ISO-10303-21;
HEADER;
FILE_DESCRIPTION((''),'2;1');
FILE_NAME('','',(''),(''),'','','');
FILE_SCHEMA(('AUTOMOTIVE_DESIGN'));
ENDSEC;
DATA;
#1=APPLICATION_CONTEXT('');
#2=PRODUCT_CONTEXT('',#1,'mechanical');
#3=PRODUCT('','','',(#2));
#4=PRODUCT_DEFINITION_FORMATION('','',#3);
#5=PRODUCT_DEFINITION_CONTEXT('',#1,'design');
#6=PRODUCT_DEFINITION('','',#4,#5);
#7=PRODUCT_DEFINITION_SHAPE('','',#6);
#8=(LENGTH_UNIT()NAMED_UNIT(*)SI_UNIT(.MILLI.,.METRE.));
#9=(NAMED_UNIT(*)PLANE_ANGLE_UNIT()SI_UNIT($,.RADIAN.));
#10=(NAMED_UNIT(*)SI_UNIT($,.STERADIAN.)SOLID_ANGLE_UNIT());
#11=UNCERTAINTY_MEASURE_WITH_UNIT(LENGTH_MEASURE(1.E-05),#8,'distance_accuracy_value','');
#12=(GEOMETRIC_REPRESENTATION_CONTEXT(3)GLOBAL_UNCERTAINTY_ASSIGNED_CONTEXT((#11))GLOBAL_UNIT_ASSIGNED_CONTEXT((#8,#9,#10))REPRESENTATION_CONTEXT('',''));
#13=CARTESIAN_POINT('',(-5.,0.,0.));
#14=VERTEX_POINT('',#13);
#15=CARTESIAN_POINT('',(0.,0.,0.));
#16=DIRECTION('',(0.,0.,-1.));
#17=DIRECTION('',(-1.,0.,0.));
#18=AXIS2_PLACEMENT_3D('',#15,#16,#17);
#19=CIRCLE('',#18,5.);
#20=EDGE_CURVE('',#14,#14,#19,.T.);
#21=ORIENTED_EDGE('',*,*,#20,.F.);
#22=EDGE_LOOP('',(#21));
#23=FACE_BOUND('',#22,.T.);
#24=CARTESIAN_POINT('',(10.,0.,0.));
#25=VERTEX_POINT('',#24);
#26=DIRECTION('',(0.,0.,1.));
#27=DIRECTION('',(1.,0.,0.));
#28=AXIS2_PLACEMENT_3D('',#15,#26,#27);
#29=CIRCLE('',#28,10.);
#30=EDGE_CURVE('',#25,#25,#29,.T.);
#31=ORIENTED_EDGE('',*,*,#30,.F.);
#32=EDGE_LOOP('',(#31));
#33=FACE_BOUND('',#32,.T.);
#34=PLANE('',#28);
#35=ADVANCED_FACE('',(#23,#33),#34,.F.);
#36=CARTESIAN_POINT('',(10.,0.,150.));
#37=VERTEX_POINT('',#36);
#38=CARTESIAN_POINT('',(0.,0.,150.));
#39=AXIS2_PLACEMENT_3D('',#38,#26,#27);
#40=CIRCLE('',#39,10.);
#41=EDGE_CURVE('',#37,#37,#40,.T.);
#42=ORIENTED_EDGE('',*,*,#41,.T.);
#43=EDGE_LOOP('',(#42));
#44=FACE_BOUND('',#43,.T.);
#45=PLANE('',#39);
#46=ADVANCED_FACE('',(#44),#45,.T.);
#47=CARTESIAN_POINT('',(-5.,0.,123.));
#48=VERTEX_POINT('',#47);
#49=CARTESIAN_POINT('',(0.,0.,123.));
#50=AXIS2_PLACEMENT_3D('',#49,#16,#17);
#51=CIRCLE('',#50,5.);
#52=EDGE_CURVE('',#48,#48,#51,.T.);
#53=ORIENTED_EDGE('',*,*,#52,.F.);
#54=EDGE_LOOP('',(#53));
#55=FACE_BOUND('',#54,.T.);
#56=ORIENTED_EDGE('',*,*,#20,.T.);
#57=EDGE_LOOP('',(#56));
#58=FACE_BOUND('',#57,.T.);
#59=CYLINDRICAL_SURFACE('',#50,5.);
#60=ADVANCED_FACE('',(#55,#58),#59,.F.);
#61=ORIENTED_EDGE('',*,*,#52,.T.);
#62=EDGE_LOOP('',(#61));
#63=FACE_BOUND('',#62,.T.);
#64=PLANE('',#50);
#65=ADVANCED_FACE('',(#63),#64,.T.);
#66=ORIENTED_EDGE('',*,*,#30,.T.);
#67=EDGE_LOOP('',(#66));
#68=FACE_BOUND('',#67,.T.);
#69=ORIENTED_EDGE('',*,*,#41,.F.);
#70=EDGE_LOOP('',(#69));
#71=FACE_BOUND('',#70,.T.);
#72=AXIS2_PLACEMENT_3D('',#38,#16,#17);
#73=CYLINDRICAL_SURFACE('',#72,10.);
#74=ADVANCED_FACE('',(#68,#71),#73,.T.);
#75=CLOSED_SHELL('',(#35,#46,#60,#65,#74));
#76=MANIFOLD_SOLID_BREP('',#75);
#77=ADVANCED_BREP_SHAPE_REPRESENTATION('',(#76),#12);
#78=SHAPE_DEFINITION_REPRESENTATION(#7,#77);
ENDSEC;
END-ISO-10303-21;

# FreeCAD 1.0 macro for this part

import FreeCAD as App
import Part
import Sketcher
from FreeCAD import Vector
Q = App.Units.Quantity

doc = App.newDocument("Part")
body = doc.addObject("PartDesign::Body", "Body")

sketch1 = doc.addObject("Sketcher::SketchObject", "Sketch")
body.addObject(sketch1)
sketch1.AttachmentSupport = (doc.XY_Plane, [""])
sketch1.MapMode = "FlatFace"
sketch1.addGeometry(Part.Circle(Vector(0, 0, 0), Vector(0, 0, 1), 10), False)
sketch1.addConstraint([
    Sketcher.Constraint("Coincident", 0, 3, -1, 1),
    Sketcher.Constraint("Diameter", 0, Q("20 mm")),
])
pad1 = doc.addObject("PartDesign::Pad", "Pad")
body.addObject(pad1)
pad1.Profile = sketch1
pad1.Length = 150

sketch2 = doc.addObject("Sketcher::SketchObject", "Sketch001")
body.addObject(sketch2)
sketch2.AttachmentSupport = (doc.XY_Plane, [""])
sketch2.MapMode = "FlatFace"
sketch2.addGeometry(Part.Circle(Vector(0, 0, 0), Vector(0, 0, 1), 5), False)
sketch2.addConstraint([
    Sketcher.Constraint("Coincident", 0, 3, -1, 1),
    Sketcher.Constraint("Diameter", 0, Q("10 mm")),
])
pocket1 = doc.addObject("PartDesign::Pocket", "Pocket")
body.addObject(pocket1)
pocket1.Profile = sketch2
pocket1.Length = 123
pocket1.Reversed = True

doc.recompute()
